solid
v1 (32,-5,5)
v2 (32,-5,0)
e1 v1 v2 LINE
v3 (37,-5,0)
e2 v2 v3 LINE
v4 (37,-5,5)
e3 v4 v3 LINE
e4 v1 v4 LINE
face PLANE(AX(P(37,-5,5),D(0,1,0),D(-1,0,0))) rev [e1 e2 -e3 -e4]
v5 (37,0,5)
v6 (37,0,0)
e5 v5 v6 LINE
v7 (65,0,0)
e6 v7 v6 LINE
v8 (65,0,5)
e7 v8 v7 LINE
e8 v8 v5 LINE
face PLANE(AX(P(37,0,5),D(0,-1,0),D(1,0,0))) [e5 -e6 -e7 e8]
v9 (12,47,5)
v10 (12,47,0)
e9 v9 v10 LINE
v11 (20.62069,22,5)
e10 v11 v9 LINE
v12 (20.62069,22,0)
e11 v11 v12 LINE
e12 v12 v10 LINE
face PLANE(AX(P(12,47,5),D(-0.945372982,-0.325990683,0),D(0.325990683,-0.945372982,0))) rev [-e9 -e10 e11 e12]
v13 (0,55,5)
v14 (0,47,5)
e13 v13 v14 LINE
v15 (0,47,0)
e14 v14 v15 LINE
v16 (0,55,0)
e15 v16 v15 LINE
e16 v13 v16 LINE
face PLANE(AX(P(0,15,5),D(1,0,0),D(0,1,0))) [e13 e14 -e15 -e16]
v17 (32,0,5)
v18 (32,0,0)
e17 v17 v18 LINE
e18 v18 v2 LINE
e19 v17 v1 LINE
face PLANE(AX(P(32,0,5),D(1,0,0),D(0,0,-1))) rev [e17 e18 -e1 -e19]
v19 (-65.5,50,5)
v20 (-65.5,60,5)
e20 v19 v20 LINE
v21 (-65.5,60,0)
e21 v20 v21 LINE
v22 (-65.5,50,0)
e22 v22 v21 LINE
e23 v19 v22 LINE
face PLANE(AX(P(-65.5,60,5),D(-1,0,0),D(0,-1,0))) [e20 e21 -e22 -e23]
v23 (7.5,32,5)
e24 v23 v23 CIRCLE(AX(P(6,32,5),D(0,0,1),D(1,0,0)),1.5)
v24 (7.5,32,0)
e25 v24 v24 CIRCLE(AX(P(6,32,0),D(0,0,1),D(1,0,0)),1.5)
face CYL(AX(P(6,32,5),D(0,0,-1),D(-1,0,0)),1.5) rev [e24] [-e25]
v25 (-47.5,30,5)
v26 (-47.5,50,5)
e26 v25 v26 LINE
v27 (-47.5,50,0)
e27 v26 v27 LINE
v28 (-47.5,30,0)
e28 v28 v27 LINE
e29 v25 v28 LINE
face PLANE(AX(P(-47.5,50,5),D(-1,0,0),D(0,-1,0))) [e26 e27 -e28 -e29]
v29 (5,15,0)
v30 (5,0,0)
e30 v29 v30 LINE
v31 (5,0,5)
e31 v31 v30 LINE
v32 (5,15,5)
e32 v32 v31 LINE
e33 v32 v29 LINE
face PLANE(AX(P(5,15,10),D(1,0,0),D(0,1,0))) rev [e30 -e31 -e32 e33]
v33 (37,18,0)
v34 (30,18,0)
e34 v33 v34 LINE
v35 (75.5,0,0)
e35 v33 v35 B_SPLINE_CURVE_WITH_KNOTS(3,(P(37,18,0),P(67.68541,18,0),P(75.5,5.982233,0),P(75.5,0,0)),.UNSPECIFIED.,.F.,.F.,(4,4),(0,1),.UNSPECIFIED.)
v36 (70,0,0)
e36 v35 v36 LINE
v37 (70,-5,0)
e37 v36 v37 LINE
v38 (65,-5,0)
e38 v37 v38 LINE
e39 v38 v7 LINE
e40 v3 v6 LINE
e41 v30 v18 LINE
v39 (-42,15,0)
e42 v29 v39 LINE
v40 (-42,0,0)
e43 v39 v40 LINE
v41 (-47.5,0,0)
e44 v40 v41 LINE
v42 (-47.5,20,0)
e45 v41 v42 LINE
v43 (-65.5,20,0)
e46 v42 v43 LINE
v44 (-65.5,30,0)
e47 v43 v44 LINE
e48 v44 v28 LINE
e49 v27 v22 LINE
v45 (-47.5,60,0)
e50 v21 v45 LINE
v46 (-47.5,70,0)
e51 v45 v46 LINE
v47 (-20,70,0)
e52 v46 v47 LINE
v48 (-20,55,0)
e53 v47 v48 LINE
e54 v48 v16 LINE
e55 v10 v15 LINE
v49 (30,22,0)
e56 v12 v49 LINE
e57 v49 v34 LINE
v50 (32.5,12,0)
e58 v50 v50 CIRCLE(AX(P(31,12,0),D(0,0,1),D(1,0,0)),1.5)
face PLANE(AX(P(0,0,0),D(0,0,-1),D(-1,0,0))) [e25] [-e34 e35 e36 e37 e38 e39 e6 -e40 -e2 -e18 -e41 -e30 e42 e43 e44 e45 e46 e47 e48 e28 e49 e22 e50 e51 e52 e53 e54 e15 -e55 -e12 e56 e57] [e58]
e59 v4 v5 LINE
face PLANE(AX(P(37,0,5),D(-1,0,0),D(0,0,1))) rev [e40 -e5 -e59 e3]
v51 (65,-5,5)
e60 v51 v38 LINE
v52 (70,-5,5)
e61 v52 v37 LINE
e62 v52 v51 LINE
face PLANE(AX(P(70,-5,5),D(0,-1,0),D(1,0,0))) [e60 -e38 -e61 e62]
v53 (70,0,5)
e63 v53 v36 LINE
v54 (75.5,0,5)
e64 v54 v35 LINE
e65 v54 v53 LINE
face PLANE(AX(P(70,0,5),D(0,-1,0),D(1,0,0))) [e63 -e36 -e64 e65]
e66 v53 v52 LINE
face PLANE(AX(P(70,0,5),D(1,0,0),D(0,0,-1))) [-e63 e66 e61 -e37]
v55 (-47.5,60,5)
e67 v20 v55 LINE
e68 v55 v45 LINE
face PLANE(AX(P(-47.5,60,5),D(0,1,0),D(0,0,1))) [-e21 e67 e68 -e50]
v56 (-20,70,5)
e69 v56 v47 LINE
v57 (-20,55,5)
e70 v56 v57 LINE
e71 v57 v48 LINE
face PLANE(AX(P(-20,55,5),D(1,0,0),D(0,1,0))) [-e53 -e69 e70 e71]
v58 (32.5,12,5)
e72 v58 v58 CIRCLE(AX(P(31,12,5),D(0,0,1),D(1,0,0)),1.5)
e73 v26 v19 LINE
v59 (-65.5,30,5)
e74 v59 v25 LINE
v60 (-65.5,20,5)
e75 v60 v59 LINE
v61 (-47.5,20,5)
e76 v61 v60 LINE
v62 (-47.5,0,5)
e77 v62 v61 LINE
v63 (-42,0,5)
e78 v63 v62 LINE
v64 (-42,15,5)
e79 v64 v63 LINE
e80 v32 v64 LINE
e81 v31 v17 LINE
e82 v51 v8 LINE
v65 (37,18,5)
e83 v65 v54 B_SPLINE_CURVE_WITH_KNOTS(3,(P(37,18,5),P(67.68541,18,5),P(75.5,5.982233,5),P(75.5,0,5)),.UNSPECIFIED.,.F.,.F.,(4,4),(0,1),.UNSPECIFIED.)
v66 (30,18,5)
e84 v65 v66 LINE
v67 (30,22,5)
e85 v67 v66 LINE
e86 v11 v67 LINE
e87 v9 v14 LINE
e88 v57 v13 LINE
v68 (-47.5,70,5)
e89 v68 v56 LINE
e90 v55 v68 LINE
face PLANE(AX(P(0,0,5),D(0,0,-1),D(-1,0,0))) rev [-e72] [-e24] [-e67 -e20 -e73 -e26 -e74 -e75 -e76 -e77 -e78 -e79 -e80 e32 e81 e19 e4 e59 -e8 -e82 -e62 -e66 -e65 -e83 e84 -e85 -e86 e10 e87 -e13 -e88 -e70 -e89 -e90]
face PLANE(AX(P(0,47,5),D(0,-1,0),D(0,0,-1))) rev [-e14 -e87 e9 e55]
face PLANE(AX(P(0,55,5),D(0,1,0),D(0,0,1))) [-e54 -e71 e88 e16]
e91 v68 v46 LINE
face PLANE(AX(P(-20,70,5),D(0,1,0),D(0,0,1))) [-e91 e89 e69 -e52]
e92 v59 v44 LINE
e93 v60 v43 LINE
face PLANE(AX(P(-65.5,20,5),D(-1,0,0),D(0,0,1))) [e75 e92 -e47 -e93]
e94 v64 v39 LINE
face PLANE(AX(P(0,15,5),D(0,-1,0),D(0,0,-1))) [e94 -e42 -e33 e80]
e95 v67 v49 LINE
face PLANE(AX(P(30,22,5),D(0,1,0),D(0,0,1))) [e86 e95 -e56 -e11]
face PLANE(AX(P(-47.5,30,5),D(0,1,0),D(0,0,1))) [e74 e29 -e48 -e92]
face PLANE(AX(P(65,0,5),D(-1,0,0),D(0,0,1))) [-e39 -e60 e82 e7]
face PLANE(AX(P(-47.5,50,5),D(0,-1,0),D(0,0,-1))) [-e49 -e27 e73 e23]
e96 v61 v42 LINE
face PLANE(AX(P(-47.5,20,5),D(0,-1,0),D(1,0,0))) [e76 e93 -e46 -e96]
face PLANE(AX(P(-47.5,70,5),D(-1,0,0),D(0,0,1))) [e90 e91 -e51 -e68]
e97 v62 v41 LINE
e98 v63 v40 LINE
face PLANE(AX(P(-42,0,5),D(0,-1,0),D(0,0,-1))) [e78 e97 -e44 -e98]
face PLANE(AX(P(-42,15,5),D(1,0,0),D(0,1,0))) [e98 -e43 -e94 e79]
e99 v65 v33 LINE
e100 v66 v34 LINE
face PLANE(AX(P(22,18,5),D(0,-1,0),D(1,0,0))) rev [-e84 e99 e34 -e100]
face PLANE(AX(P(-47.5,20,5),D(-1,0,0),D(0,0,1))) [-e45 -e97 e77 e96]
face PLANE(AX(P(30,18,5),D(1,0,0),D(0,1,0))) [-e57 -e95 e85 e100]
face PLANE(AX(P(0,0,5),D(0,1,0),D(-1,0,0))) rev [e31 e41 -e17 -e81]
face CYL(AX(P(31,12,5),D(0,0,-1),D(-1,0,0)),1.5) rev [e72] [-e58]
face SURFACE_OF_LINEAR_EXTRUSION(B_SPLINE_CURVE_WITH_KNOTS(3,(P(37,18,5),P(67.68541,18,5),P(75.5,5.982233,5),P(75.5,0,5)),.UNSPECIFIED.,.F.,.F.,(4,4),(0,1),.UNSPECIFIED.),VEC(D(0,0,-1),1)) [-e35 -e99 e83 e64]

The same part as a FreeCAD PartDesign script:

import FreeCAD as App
import Part
import Sketcher

V = App.Vector

doc = App.newDocument("Part")
body = doc.addObject("PartDesign::Body", "Body")

# Sketch on XY plane
sketch1 = body.newObject("Sketcher::SketchObject", "Sketch")
sketch1.AttachmentSupport = (doc.getObject("XY_Plane"), [""])
sketch1.MapMode = "FlatFace"
sketch1.addGeometry(Part.LineSegment(V(0, 0, 0), V(32, 0, 0)), False)
sketch1.addGeometry(Part.LineSegment(V(32, 0, 0), V(32, -5, 0)), False)
sketch1.addGeometry(Part.LineSegment(V(32, -5, 0), V(37, -5, 0)), False)
sketch1.addGeometry(Part.LineSegment(V(37, -5, 0), V(37, 18, 0)), False)
sketch1.addGeometry(Part.LineSegment(V(37, 18, 0), V(22, 18, 0)), False)
sketch1.addGeometry(Part.LineSegment(V(22, 18, 0), V(12, 47, 0)), False)
sketch1.addGeometry(Part.LineSegment(V(12, 47, 0), V(0, 47, 0)), False)
sketch1.addGeometry(Part.LineSegment(V(0, 47, 0), V(0, 0, 0)), False)
sketch1.addGeometry(Part.Circle(V(31, 12, 0), V(0, 0, 1), 1.5), False)
sketch1.addGeometry(Part.Circle(V(6, 32, 0), V(0, 0, 1), 1.5), False)
sketch1.addConstraint(Sketcher.Constraint("Coincident", 0, 2, 1, 1))
sketch1.addConstraint(Sketcher.Constraint("Coincident", 1, 2, 2, 1))
sketch1.addConstraint(Sketcher.Constraint("Coincident", 2, 2, 3, 1))
sketch1.addConstraint(Sketcher.Constraint("Coincident", 3, 2, 4, 1))
sketch1.addConstraint(Sketcher.Constraint("Coincident", 4, 2, 5, 1))
sketch1.addConstraint(Sketcher.Constraint("Coincident", 5, 2, 6, 1))
sketch1.addConstraint(Sketcher.Constraint("Coincident", 6, 2, 7, 1))
sketch1.addConstraint(Sketcher.Constraint("Coincident", 7, 2, 0, 1))
sketch1.addConstraint(Sketcher.Constraint("Horizontal", 0))
sketch1.addConstraint(Sketcher.Constraint("Vertical", 1))
sketch1.addConstraint(Sketcher.Constraint("Horizontal", 2))
sketch1.addConstraint(Sketcher.Constraint("Vertical", 3))
sketch1.addConstraint(Sketcher.Constraint("Horizontal", 4))
sketch1.addConstraint(Sketcher.Constraint("Horizontal", 6))
sketch1.addConstraint(Sketcher.Constraint("Vertical", 7))
sketch1.addConstraint(Sketcher.Constraint("Coincident", 7, 2, -1, 1))
sketch1.addConstraint(Sketcher.Constraint("Equal", 8, 9))
sketch1.addConstraint(Sketcher.Constraint("Equal", 2, 1))
sketch1.addConstraint(Sketcher.Constraint("Diameter", 8, 3.0))
sketch1.addConstraint(Sketcher.Constraint("DistanceX", 0, 1, 0, 2, 32.0))
sketch1.addConstraint(Sketcher.Constraint("DistanceX", 2, 1, 2, 2, 5.0))
sketch1.addConstraint(Sketcher.Constraint("DistanceX", 4, 2, 4, 1, 15.0))
sketch1.addConstraint(Sketcher.Constraint("DistanceX", 6, 2, 6, 1, 12.0))
sketch1.addConstraint(Sketcher.Constraint("DistanceY", 3, 1, 3, 2, 23.0))
sketch1.addConstraint(Sketcher.Constraint("DistanceY", 7, 2, 7, 1, 47.0))
sketch1.addConstraint(Sketcher.Constraint("DistanceX", -1, 1, 8, 3, 31.0))
sketch1.addConstraint(Sketcher.Constraint("DistanceY", -1, 1, 8, 3, 12.0))
sketch1.addConstraint(Sketcher.Constraint("DistanceX", -1, 1, 9, 3, 6.0))
sketch1.addConstraint(Sketcher.Constraint("DistanceY", -1, 1, 9, 3, 32.0))
pad1 = body.newObject("PartDesign::Pad", "Pad")
pad1.Profile = sketch1
pad1.Length = 5

# Sketch on XY plane
sketch2 = body.newObject("Sketcher::SketchObject", "Sketch001")
sketch2.AttachmentSupport = (doc.getObject("XY_Plane"), [""])
sketch2.MapMode = "FlatFace"
sketch2.addGeometry(Part.LineSegment(V(65, 0, 0), V(37, 0, 0)), False)
sketch2.addGeometry(Part.LineSegment(V(37, 0, 0), V(37, 18, 0)), False)
sketch2.addGeometry(Part.BSplineCurve([V(75.5, 0, 0), V(75.5, 5.982233, 0), V(67.68541, 18, 0), V(37, 18, 0)], [4, 4], [0, 1], False, 3, [1, 1, 1, 1], False), False)
sketch2.addGeometry(Part.LineSegment(V(75.5, 0, 0), V(70, 0, 0)), False)
sketch2.addGeometry(Part.LineSegment(V(70, 0, 0), V(70, -5, 0)), False)
sketch2.addGeometry(Part.LineSegment(V(70, -5, 0), V(65, -5, 0)), False)
sketch2.addGeometry(Part.LineSegment(V(65, -5, 0), V(65, 0, 0)), False)
sketch2.addGeometry(Part.LineSegment(V(-42, 0, 0), V(-47.5, 0, 0)), False)
sketch2.addGeometry(Part.LineSegment(V(-47.5, 0, 0), V(-47.5, 20, 0)), False)
sketch2.addGeometry(Part.LineSegment(V(-47.5, 20, 0), V(-65.5, 20, 0)), False)
sketch2.addGeometry(Part.LineSegment(V(-65.5, 20, 0), V(-65.5, 30, 0)), False)
sketch2.addGeometry(Part.LineSegment(V(-65.5, 30, 0), V(-47.5, 30, 0)), False)
sketch2.addGeometry(Part.LineSegment(V(-47.5, 30, 0), V(-47.5, 50, 0)), False)
sketch2.addGeometry(Part.LineSegment(V(-47.5, 50, 0), V(-65.5, 50, 0)), False)
sketch2.addGeometry(Part.LineSegment(V(-65.5, 50, 0), V(-65.5, 60, 0)), False)
sketch2.addGeometry(Part.LineSegment(V(-65.5, 60, 0), V(-47.5, 60, 0)), False)
sketch2.addGeometry(Part.LineSegment(V(-47.5, 60, 0), V(-47.5, 70, 0)), False)
sketch2.addGeometry(Part.LineSegment(V(-47.5, 70, 0), V(-20, 70, 0)), False)
sketch2.addGeometry(Part.LineSegment(V(-20, 70, 0), V(-20, 55, 0)), False)
sketch2.addGeometry(Part.LineSegment(V(-20, 55, 0), V(0, 55, 0)), False)
sketch2.addGeometry(Part.LineSegment(V(0, 55, 0), V(0, 15, 0)), False)
sketch2.addGeometry(Part.LineSegment(V(0, 15, 0), V(-42, 15, 0)), False)
sketch2.addGeometry(Part.LineSegment(V(-42, 15, 0), V(-42, 0, 0)), False)
sketch2.addGeometry(Part.LineSegment(V(30, 18, 0), V(22, 18, 0)), False)
sketch2.addGeometry(Part.LineSegment(V(22, 18, 0), V(20.62069, 22, 0)), False)
sketch2.addGeometry(Part.LineSegment(V(20.62069, 22, 0), V(30, 22, 0)), False)
sketch2.addGeometry(Part.LineSegment(V(30, 22, 0), V(30, 18, 0)), False)
sketch2.addConstraint(Sketcher.Constraint("Block", 2))
sketch2.addConstraint(Sketcher.Constraint("Coincident", 0, 2, 1, 1))
sketch2.addConstraint(Sketcher.Constraint("Coincident", 1, 2, 2, 2))
sketch2.addConstraint(Sketcher.Constraint("Coincident", 2, 1, 3, 1))
sketch2.addConstraint(Sketcher.Constraint("Coincident", 3, 2, 4, 1))
sketch2.addConstraint(Sketcher.Constraint("Coincident", 4, 2, 5, 1))
sketch2.addConstraint(Sketcher.Constraint("Coincident", 5, 2, 6, 1))
sketch2.addConstraint(Sketcher.Constraint("Coincident", 6, 2, 0, 1))
sketch2.addConstraint(Sketcher.Constraint("Coincident", 7, 2, 8, 1))
sketch2.addConstraint(Sketcher.Constraint("Coincident", 8, 2, 9, 1))
sketch2.addConstraint(Sketcher.Constraint("Coincident", 9, 2, 10, 1))
sketch2.addConstraint(Sketcher.Constraint("Coincident", 10, 2, 11, 1))
sketch2.addConstraint(Sketcher.Constraint("Coincident", 11, 2, 12, 1))
sketch2.addConstraint(Sketcher.Constraint("Coincident", 12, 2, 13, 1))
sketch2.addConstraint(Sketcher.Constraint("Coincident", 13, 2, 14, 1))
sketch2.addConstraint(Sketcher.Constraint("Coincident", 14, 2, 15, 1))
sketch2.addConstraint(Sketcher.Constraint("Coincident", 15, 2, 16, 1))
sketch2.addConstraint(Sketcher.Constraint("Coincident", 16, 2, 17, 1))
sketch2.addConstraint(Sketcher.Constraint("Coincident", 17, 2, 18, 1))
sketch2.addConstraint(Sketcher.Constraint("Coincident", 18, 2, 19, 1))
sketch2.addConstraint(Sketcher.Constraint("Coincident", 19, 2, 20, 1))
sketch2.addConstraint(Sketcher.Constraint("Coincident", 20, 2, 21, 1))
sketch2.addConstraint(Sketcher.Constraint("Coincident", 21, 2, 22, 1))
sketch2.addConstraint(Sketcher.Constraint("Coincident", 22, 2, 7, 1))
sketch2.addConstraint(Sketcher.Constraint("Coincident", 23, 2, 24, 1))
sketch2.addConstraint(Sketcher.Constraint("Coincident", 24, 2, 25, 1))
sketch2.addConstraint(Sketcher.Constraint("Coincident", 25, 2, 26, 1))
sketch2.addConstraint(Sketcher.Constraint("Coincident", 26, 2, 23, 1))
sketch2.addConstraint(Sketcher.Constraint("Horizontal", 0))
sketch2.addConstraint(Sketcher.Constraint("Vertical", 1))
sketch2.addConstraint(Sketcher.Constraint("Horizontal", 3))
sketch2.addConstraint(Sketcher.Constraint("Vertical", 4))
sketch2.addConstraint(Sketcher.Constraint("Horizontal", 5))
sketch2.addConstraint(Sketcher.Constraint("Vertical", 6))
sketch2.addConstraint(Sketcher.Constraint("Horizontal", 7))
sketch2.addConstraint(Sketcher.Constraint("Vertical", 8))
sketch2.addConstraint(Sketcher.Constraint("Horizontal", 9))
sketch2.addConstraint(Sketcher.Constraint("Vertical", 10))
sketch2.addConstraint(Sketcher.Constraint("Horizontal", 11))
sketch2.addConstraint(Sketcher.Constraint("Vertical", 12))
sketch2.addConstraint(Sketcher.Constraint("Horizontal", 13))
sketch2.addConstraint(Sketcher.Constraint("Vertical", 14))
sketch2.addConstraint(Sketcher.Constraint("Horizontal", 15))
sketch2.addConstraint(Sketcher.Constraint("Vertical", 16))
sketch2.addConstraint(Sketcher.Constraint("Horizontal", 17))
sketch2.addConstraint(Sketcher.Constraint("Vertical", 18))
sketch2.addConstraint(Sketcher.Constraint("Horizontal", 19))
sketch2.addConstraint(Sketcher.Constraint("Vertical", 20))
sketch2.addConstraint(Sketcher.Constraint("Horizontal", 21))
sketch2.addConstraint(Sketcher.Constraint("Vertical", 22))
sketch2.addConstraint(Sketcher.Constraint("Horizontal", 23))
sketch2.addConstraint(Sketcher.Constraint("Horizontal", 25))
sketch2.addConstraint(Sketcher.Constraint("Vertical", 26))
sketch2.addConstraint(Sketcher.Constraint("PointOnObject", 0, 2, -1))
sketch2.addConstraint(Sketcher.Constraint("PointOnObject", 7, 2, -1))
sketch2.addConstraint(Sketcher.Constraint("PointOnObject", 19, 2, -2))
sketch2.addConstraint(Sketcher.Constraint("DistanceX", 0, 2, 0, 1, 28.0))
sketch2.addConstraint(Sketcher.Constraint("DistanceX", 5, 2, 5, 1, 5.0))
sketch2.addConstraint(Sketcher.Constraint("DistanceX", 9, 2, 9, 1, 18.0))
sketch2.addConstraint(Sketcher.Constraint("DistanceX", 11, 1, 11, 2, 18.0))
sketch2.addConstraint(Sketcher.Constraint("DistanceX", 13, 2, 13, 1, 18.0))
sketch2.addConstraint(Sketcher.Constraint("DistanceX", 15, 1, 15, 2, 18.0))
sketch2.addConstraint(Sketcher.Constraint("DistanceX", 19, 1, 19, 2, 20.0))
sketch2.addConstraint(Sketcher.Constraint("DistanceX", 21, 2, 21, 1, 42.0))
sketch2.addConstraint(Sketcher.Constraint("DistanceX", 23, 2, 23, 1, 8.0))
sketch2.addConstraint(Sketcher.Constraint("DistanceY", 4, 2, 4, 1, 5.0))
sketch2.addConstraint(Sketcher.Constraint("DistanceY", 8, 1, 8, 2, 20.0))
sketch2.addConstraint(Sketcher.Constraint("DistanceY", 10, 1, 10, 2, 10.0))
sketch2.addConstraint(Sketcher.Constraint("DistanceY", 12, 1, 12, 2, 20.0))
sketch2.addConstraint(Sketcher.Constraint("DistanceY", 14, 1, 14, 2, 10.0))
sketch2.addConstraint(Sketcher.Constraint("DistanceY", 16, 1, 16, 2, 10.0))
sketch2.addConstraint(Sketcher.Constraint("DistanceY", 18, 2, 18, 1, 15.0))
sketch2.addConstraint(Sketcher.Constraint("DistanceY", 20, 2, 20, 1, 40.0))
sketch2.addConstraint(Sketcher.Constraint("DistanceY", 26, 2, 26, 1, 4.0))
sketch2.addConstraint(Sketcher.Constraint("DistanceX", 7, 2, 7, 1, 5.5))
sketch2.addConstraint(Sketcher.Constraint("DistanceX", -1, 1, 23, 2, 22.0))
sketch2.addConstraint(Sketcher.Constraint("DistanceY", -1, 1, 23, 2, 18.0))
sketch2.addConstraint(Sketcher.Constraint("DistanceX", 25, 1, 25, 2, 9.37931))
pad2 = body.newObject("PartDesign::Pad", "Pad001")
pad2.Profile = sketch2
pad2.Length = 5

# Sketch on XY plane
sketch3 = body.newObject("Sketcher::SketchObject", "Sketch002")
sketch3.AttachmentSupport = (doc.getObject("XY_Plane"), [""])
sketch3.MapMode = "FlatFace"
sketch3.addGeometry(Part.LineSegment(V(5, 15, 0), V(5, 0, 0)), False)
sketch3.addGeometry(Part.LineSegment(V(5, 0, 0), V(0, 0, 0)), False)
sketch3.addGeometry(Part.LineSegment(V(0, 0, 0), V(0, 15, 0)), False)
sketch3.addGeometry(Part.LineSegment(V(0, 15, 0), V(5, 15, 0)), False)
sketch3.addConstraint(Sketcher.Constraint("Coincident", 0, 2, 1, 1))
sketch3.addConstraint(Sketcher.Constraint("Coincident", 1, 2, 2, 1))
sketch3.addConstraint(Sketcher.Constraint("Coincident", 2, 2, 3, 1))
sketch3.addConstraint(Sketcher.Constraint("Coincident", 3, 2, 0, 1))
sketch3.addConstraint(Sketcher.Constraint("Vertical", 0))
sketch3.addConstraint(Sketcher.Constraint("Horizontal", 1))
sketch3.addConstraint(Sketcher.Constraint("Vertical", 2))
sketch3.addConstraint(Sketcher.Constraint("Horizontal", 3))
sketch3.addConstraint(Sketcher.Constraint("Coincident", 1, 2, -1, 1))
sketch3.addConstraint(Sketcher.Constraint("DistanceX", 1, 2, 1, 1, 5.0))
sketch3.addConstraint(Sketcher.Constraint("DistanceY", 0, 2, 0, 1, 15.0))
pocket1 = body.newObject("PartDesign::Pocket", "Pocket")
pocket1.Profile = sketch3
pocket1.Length = 10
pocket1.Reversed = True

doc.recompute()
